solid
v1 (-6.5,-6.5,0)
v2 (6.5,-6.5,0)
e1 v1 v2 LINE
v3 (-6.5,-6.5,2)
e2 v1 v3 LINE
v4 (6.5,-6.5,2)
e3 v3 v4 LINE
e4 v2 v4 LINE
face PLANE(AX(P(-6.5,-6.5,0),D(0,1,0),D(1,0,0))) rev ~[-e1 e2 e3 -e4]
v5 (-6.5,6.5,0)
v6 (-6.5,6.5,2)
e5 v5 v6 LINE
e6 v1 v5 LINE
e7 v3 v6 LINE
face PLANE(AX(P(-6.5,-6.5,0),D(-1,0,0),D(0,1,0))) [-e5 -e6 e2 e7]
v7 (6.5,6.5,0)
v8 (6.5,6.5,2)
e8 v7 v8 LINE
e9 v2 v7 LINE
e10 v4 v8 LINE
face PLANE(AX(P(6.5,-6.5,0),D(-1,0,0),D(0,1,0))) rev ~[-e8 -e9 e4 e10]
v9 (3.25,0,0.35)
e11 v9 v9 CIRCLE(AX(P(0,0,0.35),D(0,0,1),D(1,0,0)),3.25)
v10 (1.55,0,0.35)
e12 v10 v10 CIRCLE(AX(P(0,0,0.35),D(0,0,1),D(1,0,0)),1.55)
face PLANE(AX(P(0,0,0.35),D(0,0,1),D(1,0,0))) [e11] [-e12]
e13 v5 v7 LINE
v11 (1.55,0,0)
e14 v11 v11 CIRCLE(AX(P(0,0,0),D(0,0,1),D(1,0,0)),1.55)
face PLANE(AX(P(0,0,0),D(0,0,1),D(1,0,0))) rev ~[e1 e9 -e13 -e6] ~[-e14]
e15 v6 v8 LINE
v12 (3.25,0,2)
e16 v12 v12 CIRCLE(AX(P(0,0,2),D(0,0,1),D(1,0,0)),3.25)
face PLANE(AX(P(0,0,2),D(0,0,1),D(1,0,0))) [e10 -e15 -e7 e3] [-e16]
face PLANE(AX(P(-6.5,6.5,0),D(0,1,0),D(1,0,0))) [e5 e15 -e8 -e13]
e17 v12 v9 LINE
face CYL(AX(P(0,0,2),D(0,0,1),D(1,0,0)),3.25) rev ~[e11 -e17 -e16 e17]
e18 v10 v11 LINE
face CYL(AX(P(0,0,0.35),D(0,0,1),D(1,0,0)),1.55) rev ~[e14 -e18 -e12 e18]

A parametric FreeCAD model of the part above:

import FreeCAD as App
import Part
import Sketcher
from FreeCAD import Vector


def add_polygon(sketch, points):
    """Adds a closed chain of lines whose ends are joined by coincident constraints."""
    first, n = sketch.GeometryCount, len(points)
    for a, b in zip(points, points[1:] + points[:1]):
        sketch.addGeometry(Part.LineSegment(App.Vector(*a, 0), App.Vector(*b, 0)), False)
    for i in range(n):
        sketch.addConstraint(Sketcher.Constraint("Coincident", first + i, 2, first + (i + 1) % n, 1))

doc = App.newDocument("Part")
body = doc.addObject("PartDesign::Body", "Body")

# Sketch on XY plane
sketch1 = body.newObject("Sketcher::SketchObject", "Sketch")
sketch1.AttachmentSupport = (doc.getObject("XY_Plane"), [""])
sketch1.MapMode = "FlatFace"
add_polygon(sketch1, [(-6.5, 6.5), (-6.5, -6.5), (6.5, -6.5), (6.5, 6.5)])  # lines 0-3
sketch1.addConstraint([
    Sketcher.Constraint("Vertical", 0),
    Sketcher.Constraint("Horizontal", 1),
    Sketcher.Constraint("Vertical", 2),
    Sketcher.Constraint("Horizontal", 3),
    Sketcher.Constraint("Symmetric", 0, 2, 2, 2, -1, 1),
    Sketcher.Constraint("Equal", 3, 0),
    Sketcher.Constraint("DistanceX", 1, 1, 1, 2, 13.0),
])
pad1 = body.newObject("PartDesign::Pad", "Pad")
pad1.Profile = sketch1
pad1.Length = 2

# Sketch on XY plane
sketch2 = body.newObject("Sketcher::SketchObject", "Sketch001")
sketch2.AttachmentSupport = (doc.getObject("XY_Plane"), [""])
sketch2.MapMode = "FlatFace"
sketch2.AttachmentOffset = App.Placement(Vector(0, 0, 2), App.Rotation())
sketch2.addGeometry(Part.Circle(Vector(0, 0, 0), Vector(0, 0, 1), 3.25), False)
sketch2.addConstraint([
    Sketcher.Constraint("Coincident", 0, 3, -1, 1),
    Sketcher.Constraint("Diameter", 0, 6.5),
])
pocket1 = body.newObject("PartDesign::Pocket", "Pocket")
pocket1.Profile = sketch2
pocket1.Length = 1.65

# Sketch on XY plane
sketch3 = body.newObject("Sketcher::SketchObject", "Sketch002")
sketch3.AttachmentSupport = (doc.getObject("XY_Plane"), [""])
sketch3.MapMode = "FlatFace"
sketch3.AttachmentOffset = App.Placement(Vector(0, 0, 0.35), App.Rotation())
sketch3.addGeometry(Part.Circle(Vector(0, 0, 0), Vector(0, 0, 1), 1.55), False)
sketch3.addConstraint([
    Sketcher.Constraint("Coincident", 0, 3, -1, 1),
    Sketcher.Constraint("Diameter", 0, 3.1),
])
pocket2 = body.newObject("PartDesign::Pocket", "Pocket001")
pocket2.Profile = sketch3
pocket2.Length = 1

doc.recompute()
